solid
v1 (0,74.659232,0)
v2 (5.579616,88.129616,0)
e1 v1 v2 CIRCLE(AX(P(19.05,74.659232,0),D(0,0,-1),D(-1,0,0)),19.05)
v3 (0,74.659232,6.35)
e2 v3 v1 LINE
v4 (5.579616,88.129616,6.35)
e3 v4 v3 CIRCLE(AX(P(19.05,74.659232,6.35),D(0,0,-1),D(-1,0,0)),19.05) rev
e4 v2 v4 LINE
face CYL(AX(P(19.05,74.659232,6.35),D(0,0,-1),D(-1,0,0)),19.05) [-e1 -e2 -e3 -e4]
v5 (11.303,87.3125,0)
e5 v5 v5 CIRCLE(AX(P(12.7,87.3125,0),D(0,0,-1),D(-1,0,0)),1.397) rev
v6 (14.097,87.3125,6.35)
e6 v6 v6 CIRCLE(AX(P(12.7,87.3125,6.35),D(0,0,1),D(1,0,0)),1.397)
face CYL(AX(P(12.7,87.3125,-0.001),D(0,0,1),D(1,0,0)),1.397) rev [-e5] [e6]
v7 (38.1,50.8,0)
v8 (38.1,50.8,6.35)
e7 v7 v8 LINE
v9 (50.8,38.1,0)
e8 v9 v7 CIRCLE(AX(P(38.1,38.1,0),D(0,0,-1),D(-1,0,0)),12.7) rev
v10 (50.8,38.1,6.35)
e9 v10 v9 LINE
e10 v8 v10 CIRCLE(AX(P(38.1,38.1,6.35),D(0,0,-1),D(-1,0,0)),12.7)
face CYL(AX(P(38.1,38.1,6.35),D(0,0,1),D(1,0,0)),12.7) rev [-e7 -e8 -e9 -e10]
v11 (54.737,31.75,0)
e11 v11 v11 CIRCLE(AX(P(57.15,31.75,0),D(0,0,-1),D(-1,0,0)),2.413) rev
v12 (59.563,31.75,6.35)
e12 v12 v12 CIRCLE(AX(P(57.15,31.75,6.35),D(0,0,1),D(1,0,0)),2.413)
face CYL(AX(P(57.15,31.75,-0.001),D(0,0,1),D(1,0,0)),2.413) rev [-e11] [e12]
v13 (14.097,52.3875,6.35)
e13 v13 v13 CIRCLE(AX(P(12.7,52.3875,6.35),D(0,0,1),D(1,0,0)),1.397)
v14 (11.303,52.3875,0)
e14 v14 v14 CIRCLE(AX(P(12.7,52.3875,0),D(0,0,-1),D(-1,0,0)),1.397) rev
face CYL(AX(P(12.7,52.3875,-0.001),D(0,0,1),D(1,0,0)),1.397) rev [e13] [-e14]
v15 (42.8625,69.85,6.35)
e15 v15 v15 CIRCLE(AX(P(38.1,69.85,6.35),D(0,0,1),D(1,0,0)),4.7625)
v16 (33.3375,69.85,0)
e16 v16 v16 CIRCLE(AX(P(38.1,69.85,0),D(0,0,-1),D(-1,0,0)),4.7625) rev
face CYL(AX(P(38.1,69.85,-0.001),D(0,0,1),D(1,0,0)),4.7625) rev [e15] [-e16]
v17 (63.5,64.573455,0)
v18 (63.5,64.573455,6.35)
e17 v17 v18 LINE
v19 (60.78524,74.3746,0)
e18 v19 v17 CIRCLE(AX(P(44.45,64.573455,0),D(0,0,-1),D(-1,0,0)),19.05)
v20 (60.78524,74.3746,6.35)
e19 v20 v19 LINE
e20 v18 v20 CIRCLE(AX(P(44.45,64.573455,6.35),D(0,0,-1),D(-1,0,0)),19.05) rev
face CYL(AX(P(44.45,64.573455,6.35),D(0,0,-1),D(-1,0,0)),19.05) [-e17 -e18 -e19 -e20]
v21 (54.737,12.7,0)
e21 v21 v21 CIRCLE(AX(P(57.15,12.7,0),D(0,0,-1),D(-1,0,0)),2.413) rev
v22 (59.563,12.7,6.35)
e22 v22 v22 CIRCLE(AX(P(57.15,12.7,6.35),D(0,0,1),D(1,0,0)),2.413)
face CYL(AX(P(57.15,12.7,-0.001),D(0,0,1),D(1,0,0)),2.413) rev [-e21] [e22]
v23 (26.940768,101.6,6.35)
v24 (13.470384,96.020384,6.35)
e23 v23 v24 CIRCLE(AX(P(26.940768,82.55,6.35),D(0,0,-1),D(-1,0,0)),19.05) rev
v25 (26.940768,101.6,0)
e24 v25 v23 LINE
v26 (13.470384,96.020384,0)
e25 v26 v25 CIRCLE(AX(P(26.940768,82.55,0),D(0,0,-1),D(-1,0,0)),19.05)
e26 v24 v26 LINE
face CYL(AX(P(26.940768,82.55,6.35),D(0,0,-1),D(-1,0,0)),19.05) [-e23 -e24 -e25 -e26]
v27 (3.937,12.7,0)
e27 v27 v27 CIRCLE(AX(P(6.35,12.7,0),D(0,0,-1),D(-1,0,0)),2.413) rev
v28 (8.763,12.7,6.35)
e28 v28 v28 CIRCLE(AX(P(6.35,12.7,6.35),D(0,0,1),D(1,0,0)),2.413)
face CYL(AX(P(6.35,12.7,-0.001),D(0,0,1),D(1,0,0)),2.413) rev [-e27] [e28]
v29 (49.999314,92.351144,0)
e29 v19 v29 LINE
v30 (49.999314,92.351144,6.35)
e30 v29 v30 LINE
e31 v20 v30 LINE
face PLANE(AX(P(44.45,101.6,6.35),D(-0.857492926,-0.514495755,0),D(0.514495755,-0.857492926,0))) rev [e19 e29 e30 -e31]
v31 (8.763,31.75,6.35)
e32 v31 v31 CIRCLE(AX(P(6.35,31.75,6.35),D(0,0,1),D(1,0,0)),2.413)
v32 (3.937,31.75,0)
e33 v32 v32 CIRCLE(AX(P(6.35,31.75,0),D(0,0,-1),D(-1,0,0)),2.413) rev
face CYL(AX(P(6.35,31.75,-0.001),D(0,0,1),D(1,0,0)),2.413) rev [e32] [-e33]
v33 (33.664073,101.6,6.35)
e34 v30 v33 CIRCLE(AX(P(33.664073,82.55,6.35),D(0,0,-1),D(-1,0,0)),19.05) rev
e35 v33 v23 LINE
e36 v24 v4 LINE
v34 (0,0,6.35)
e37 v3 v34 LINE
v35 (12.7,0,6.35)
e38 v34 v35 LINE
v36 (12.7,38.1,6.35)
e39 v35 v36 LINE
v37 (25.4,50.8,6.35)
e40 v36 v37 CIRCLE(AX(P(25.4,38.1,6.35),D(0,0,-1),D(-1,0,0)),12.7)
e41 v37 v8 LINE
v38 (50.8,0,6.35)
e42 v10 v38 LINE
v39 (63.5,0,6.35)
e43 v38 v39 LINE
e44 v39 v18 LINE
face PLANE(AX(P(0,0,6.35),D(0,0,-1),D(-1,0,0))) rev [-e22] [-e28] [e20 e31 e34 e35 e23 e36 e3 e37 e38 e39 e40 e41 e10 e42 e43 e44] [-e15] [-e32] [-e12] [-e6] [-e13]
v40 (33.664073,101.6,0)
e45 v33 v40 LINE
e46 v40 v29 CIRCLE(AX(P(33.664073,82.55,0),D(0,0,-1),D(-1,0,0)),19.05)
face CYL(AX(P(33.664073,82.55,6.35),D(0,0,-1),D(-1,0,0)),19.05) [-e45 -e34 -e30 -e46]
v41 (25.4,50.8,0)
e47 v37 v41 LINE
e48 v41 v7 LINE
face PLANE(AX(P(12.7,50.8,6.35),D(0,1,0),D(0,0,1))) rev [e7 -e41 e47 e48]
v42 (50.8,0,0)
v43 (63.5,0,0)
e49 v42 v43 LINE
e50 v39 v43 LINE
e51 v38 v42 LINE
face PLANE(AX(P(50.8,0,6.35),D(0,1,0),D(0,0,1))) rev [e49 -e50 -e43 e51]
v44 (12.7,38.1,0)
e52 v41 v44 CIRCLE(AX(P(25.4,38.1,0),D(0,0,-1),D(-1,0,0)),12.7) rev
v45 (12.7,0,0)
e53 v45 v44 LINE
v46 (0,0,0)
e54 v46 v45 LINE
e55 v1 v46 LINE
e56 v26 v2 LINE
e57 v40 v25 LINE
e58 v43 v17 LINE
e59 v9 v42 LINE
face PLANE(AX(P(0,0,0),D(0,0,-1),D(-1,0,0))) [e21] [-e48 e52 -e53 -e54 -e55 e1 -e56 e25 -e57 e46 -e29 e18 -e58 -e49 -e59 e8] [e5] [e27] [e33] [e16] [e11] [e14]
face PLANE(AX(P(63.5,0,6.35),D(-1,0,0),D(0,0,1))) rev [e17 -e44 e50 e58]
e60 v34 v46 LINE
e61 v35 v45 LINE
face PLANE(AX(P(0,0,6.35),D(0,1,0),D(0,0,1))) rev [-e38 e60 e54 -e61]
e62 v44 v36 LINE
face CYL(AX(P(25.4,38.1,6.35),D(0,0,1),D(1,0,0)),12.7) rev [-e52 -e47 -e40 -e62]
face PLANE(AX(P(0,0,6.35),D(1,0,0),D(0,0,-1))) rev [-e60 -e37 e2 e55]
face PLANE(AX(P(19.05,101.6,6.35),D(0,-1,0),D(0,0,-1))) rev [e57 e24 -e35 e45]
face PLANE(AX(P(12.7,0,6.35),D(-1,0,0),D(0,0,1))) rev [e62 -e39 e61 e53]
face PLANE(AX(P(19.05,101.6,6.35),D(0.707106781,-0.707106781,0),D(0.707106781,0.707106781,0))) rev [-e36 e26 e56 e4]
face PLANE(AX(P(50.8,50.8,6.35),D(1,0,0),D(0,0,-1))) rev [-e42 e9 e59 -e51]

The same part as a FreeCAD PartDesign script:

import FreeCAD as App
import Part
import Sketcher
from FreeCAD import Vector
Q = App.Units.Quantity


def edges_at(feature, points):
    """Names of the edges that pass closest to the given points."""
    edges = feature.Shape.Edges
    near = lambda p: min(range(len(edges)), key=lambda i: edges[i].distToShape(Part.Vertex(*p))[0])
    return sorted({f"Edge{near(p) + 1}" for p in points})

doc = App.newDocument("Part")
body = doc.addObject("PartDesign::Body", "Body")

# Sketch on XY plane
sketch1 = body.newObject("Sketcher::SketchObject", "Sketch")
sketch1.AttachmentSupport = (doc.getObject("XY_Plane"), [""])
sketch1.MapMode = "FlatFace"
sketch1.addGeometry([
    Part.LineSegment(Vector(0, 0, 0), Vector(13, 0, 0)),  # 0
    Part.LineSegment(Vector(13, 0, 0), Vector(13, 51, 0)),  # 1
    Part.LineSegment(Vector(13, 51, 0), Vector(51, 51, 0)),  # 2
    Part.LineSegment(Vector(51, 51, 0), Vector(51, 0, 0)),  # 3
    Part.LineSegment(Vector(51, 0, 0), Vector(64, 0, 0)),  # 4
    Part.LineSegment(Vector(64, 0, 0), Vector(64, 70, 0)),  # 5
    Part.LineSegment(Vector(64, 70, 0), Vector(44, 102, 0)),  # 6
    Part.LineSegment(Vector(44, 102, 0), Vector(19, 102, 0)),  # 7
    Part.LineSegment(Vector(19, 102, 0), Vector(0, 83, 0)),  # 8
    Part.LineSegment(Vector(0, 83, 0), Vector(0, 0, 0)),  # 9
], False)
sketch1.addConstraint([
    Sketcher.Constraint("Coincident", 0, 2, 1, 1),
    Sketcher.Constraint("Coincident", 1, 2, 2, 1),
    Sketcher.Constraint("Coincident", 2, 2, 3, 1),
    Sketcher.Constraint("Coincident", 3, 2, 4, 1),
    Sketcher.Constraint("Coincident", 4, 2, 5, 1),
    Sketcher.Constraint("Coincident", 5, 2, 6, 1),
    Sketcher.Constraint("Coincident", 6, 2, 7, 1),
    Sketcher.Constraint("Coincident", 7, 2, 8, 1),
    Sketcher.Constraint("Coincident", 8, 2, 9, 1),
    Sketcher.Constraint("Coincident", 9, 2, 0, 1),
    Sketcher.Constraint("Horizontal", 0),
    Sketcher.Constraint("Vertical", 1),
    Sketcher.Constraint("Horizontal", 2),
    Sketcher.Constraint("Vertical", 3),
    Sketcher.Constraint("Horizontal", 4),
    Sketcher.Constraint("Vertical", 5),
    Sketcher.Constraint("Horizontal", 7),
    Sketcher.Constraint("Vertical", 9),
    Sketcher.Constraint("Coincident", 9, 2, -1, 1),
    Sketcher.Constraint("PointOnObject", 3, 2, -1),
    Sketcher.Constraint("Equal", 0, 4),
    Sketcher.Constraint("DistanceX", 7, 2, 7, 1, Q("1 in")),
    Sketcher.Constraint("DistanceY", 1, 1, 1, 2, Q("2 in")),
    Sketcher.Constraint("DistanceX", 0, 1, 0, 2, Q("0.5 in")),
    Sketcher.Constraint("DistanceX", 2, 1, 2, 2, Q("1.5 in")),
    Sketcher.Constraint("DistanceY", -1, 1, 6, 2, Q("4 in")),
    Sketcher.Constraint("Angle", 8, Q("-135 deg")),
    Sketcher.Constraint("DistanceY", 5, 1, 5, 2, Q("2.75 in")),
    Sketcher.Constraint("DistanceY", 9, 2, 9, 1, Q("3.25 in")),
])
pad1 = body.newObject("PartDesign::Pad", "Pad")
pad1.Profile = sketch1
pad1.Length = Q("0.25 in")

# Sketch on XY plane
sketch2 = body.newObject("Sketcher::SketchObject", "Sketch001")
sketch2.AttachmentSupport = (doc.getObject("XY_Plane"), [""])
sketch2.MapMode = "FlatFace"
sketch2.AttachmentOffset = App.Placement(Vector(0, 0, 0.25 * 25.4), App.Rotation())
sketch2.addGeometry(Part.Circle(Vector(6.3, 12.7, 0), Vector(0, 0, 1), 2.4), False)
sketch2.addConstraint([
    Sketcher.Constraint("Diameter", 0, Q("0.19 in")),
    Sketcher.Constraint("DistanceY", -1, 1, 0, 3, Q("0.5 in")),
    Sketcher.Constraint("DistanceX", -1, 1, 0, 3, Q("0.25 in")),
])
pocket1 = body.newObject("PartDesign::Pocket", "Pocket")
pocket1.Profile = sketch2
pocket1.Type = "UpToFirst"

# Sketch on XY plane
sketch3 = body.newObject("Sketcher::SketchObject", "Sketch002")
sketch3.AttachmentSupport = (doc.getObject("XY_Plane"), [""])
sketch3.MapMode = "FlatFace"
sketch3.AttachmentOffset = App.Placement(Vector(0, 0, 0.25 * 25.4), App.Rotation())
sketch3.addGeometry(Part.Circle(Vector(6.3, 31.8, 0), Vector(0, 0, 1), 2.4), False)
sketch3.addConstraint([
    Sketcher.Constraint("Diameter", 0, Q("0.19 in")),
    Sketcher.Constraint("DistanceX", -1, 1, 0, 3, Q("0.25 in")),
    Sketcher.Constraint("DistanceY", -1, 1, 0, 3, Q("1.25 in")),
])
pocket2 = body.newObject("PartDesign::Pocket", "Pocket001")
pocket2.Profile = sketch3
pocket2.Type = "UpToFirst"

# Sketch on XY plane
sketch4 = body.newObject("Sketcher::SketchObject", "Sketch003")
sketch4.AttachmentSupport = (doc.getObject("XY_Plane"), [""])
sketch4.MapMode = "FlatFace"
sketch4.AttachmentOffset = App.Placement(Vector(0, 0, 0.25 * 25.4), App.Rotation())
sketch4.addGeometry(Part.Circle(Vector(57.1, 12.7, 0), Vector(0, 0, 1), 2.4), False)
sketch4.addConstraint([
    Sketcher.Constraint("Diameter", 0, Q("0.19 in")),
    Sketcher.Constraint("DistanceY", -1, 1, 0, 3, Q("0.5 in")),
    Sketcher.Constraint("DistanceX", -1, 1, 0, 3, Q("2.25 in")),
])
pocket3 = body.newObject("PartDesign::Pocket", "Pocket002")
pocket3.Profile = sketch4
pocket3.Type = "UpToFirst"

# Sketch on XY plane
sketch5 = body.newObject("Sketcher::SketchObject", "Sketch004")
sketch5.AttachmentSupport = (doc.getObject("XY_Plane"), [""])
sketch5.MapMode = "FlatFace"
sketch5.AttachmentOffset = App.Placement(Vector(0, 0, 0.25 * 25.4), App.Rotation())
sketch5.addGeometry(Part.Circle(Vector(57.1, 31.8, 0), Vector(0, 0, 1), 2.4), False)
sketch5.addConstraint([
    Sketcher.Constraint("Diameter", 0, Q("0.19 in")),
    Sketcher.Constraint("DistanceX", -1, 1, 0, 3, Q("2.25 in")),
    Sketcher.Constraint("DistanceY", -1, 1, 0, 3, Q("1.25 in")),
])
pocket4 = body.newObject("PartDesign::Pocket", "Pocket003")
pocket4.Profile = sketch5
pocket4.Type = "UpToFirst"

# Sketch on XY plane
sketch6 = body.newObject("Sketcher::SketchObject", "Sketch005")
sketch6.AttachmentSupport = (doc.getObject("XY_Plane"), [""])
sketch6.MapMode = "FlatFace"
sketch6.AttachmentOffset = App.Placement(Vector(0, 0, 0.25 * 25.4), App.Rotation())
sketch6.addGeometry(Part.Circle(Vector(12.7, 52.4, 0), Vector(0, 0, 1), 1.4), False)
sketch6.addConstraint([
    Sketcher.Constraint("Diameter", 0, Q("0.11 in")),
    Sketcher.Constraint("DistanceX", -1, 1, 0, 3, Q("0.5 in")),
    Sketcher.Constraint("DistanceY", -1, 1, 0, 3, Q("2.0625 in")),
])
pocket5 = body.newObject("PartDesign::Pocket", "Pocket004")
pocket5.Profile = sketch6
pocket5.Type = "UpToFirst"

# Sketch on XY plane
sketch7 = body.newObject("Sketcher::SketchObject", "Sketch006")
sketch7.AttachmentSupport = (doc.getObject("XY_Plane"), [""])
sketch7.MapMode = "FlatFace"
sketch7.AttachmentOffset = App.Placement(Vector(0, 0, 0.25 * 25.4), App.Rotation())
sketch7.addGeometry(Part.Circle(Vector(12.7, 87.3, 0), Vector(0, 0, 1), 1.4), False)
sketch7.addConstraint([
    Sketcher.Constraint("Diameter", 0, Q("0.11 in")),
    Sketcher.Constraint("DistanceX", -1, 1, 0, 3, Q("0.5 in")),
    Sketcher.Constraint("DistanceY", -1, 1, 0, 3, Q("3.4375 in")),
])
pocket6 = body.newObject("PartDesign::Pocket", "Pocket005")
pocket6.Profile = sketch7
pocket6.Type = "UpToFirst"

# Sketch on XY plane
sketch8 = body.newObject("Sketcher::SketchObject", "Sketch007")
sketch8.AttachmentSupport = (doc.getObject("XY_Plane"), [""])
sketch8.MapMode = "FlatFace"
sketch8.AttachmentOffset = App.Placement(Vector(0, 0, 0.25 * 25.4), App.Rotation())
sketch8.addGeometry(Part.Circle(Vector(38.1, 69.8, 0), Vector(0, 0, 1), 4.8), False)
sketch8.addConstraint([
    Sketcher.Constraint("Diameter", 0, Q("0.375 in")),
    Sketcher.Constraint("DistanceX", -1, 1, 0, 3, Q("1.5 in")),
    Sketcher.Constraint("DistanceY", -1, 1, 0, 3, Q("2.75 in")),
])
pocket7 = body.newObject("PartDesign::Pocket", "Pocket006")
pocket7.Profile = sketch8
pocket7.Type = "UpToFirst"
doc.recompute()

fillet = body.newObject("PartDesign::Fillet", "Fillet")
fillet.Base = (pocket7, edges_at(pocket7, [(50.8, 50.8, 3.175), (12.7, 50.8, 3.175)]))
fillet.Radius = Q("0.5 in")
doc.recompute()

fillet2 = body.newObject("PartDesign::Fillet", "Fillet001")
fillet2.Base = (fillet, edges_at(fillet, [
    (0, 82.55, 3.175),
    (19.05, 101.6, 3.175),
    (44.45, 101.6, 3.175),
    (63.5, 69.85, 3.175),
]))
fillet2.Radius = Q("0.75 in")

doc.recompute()
